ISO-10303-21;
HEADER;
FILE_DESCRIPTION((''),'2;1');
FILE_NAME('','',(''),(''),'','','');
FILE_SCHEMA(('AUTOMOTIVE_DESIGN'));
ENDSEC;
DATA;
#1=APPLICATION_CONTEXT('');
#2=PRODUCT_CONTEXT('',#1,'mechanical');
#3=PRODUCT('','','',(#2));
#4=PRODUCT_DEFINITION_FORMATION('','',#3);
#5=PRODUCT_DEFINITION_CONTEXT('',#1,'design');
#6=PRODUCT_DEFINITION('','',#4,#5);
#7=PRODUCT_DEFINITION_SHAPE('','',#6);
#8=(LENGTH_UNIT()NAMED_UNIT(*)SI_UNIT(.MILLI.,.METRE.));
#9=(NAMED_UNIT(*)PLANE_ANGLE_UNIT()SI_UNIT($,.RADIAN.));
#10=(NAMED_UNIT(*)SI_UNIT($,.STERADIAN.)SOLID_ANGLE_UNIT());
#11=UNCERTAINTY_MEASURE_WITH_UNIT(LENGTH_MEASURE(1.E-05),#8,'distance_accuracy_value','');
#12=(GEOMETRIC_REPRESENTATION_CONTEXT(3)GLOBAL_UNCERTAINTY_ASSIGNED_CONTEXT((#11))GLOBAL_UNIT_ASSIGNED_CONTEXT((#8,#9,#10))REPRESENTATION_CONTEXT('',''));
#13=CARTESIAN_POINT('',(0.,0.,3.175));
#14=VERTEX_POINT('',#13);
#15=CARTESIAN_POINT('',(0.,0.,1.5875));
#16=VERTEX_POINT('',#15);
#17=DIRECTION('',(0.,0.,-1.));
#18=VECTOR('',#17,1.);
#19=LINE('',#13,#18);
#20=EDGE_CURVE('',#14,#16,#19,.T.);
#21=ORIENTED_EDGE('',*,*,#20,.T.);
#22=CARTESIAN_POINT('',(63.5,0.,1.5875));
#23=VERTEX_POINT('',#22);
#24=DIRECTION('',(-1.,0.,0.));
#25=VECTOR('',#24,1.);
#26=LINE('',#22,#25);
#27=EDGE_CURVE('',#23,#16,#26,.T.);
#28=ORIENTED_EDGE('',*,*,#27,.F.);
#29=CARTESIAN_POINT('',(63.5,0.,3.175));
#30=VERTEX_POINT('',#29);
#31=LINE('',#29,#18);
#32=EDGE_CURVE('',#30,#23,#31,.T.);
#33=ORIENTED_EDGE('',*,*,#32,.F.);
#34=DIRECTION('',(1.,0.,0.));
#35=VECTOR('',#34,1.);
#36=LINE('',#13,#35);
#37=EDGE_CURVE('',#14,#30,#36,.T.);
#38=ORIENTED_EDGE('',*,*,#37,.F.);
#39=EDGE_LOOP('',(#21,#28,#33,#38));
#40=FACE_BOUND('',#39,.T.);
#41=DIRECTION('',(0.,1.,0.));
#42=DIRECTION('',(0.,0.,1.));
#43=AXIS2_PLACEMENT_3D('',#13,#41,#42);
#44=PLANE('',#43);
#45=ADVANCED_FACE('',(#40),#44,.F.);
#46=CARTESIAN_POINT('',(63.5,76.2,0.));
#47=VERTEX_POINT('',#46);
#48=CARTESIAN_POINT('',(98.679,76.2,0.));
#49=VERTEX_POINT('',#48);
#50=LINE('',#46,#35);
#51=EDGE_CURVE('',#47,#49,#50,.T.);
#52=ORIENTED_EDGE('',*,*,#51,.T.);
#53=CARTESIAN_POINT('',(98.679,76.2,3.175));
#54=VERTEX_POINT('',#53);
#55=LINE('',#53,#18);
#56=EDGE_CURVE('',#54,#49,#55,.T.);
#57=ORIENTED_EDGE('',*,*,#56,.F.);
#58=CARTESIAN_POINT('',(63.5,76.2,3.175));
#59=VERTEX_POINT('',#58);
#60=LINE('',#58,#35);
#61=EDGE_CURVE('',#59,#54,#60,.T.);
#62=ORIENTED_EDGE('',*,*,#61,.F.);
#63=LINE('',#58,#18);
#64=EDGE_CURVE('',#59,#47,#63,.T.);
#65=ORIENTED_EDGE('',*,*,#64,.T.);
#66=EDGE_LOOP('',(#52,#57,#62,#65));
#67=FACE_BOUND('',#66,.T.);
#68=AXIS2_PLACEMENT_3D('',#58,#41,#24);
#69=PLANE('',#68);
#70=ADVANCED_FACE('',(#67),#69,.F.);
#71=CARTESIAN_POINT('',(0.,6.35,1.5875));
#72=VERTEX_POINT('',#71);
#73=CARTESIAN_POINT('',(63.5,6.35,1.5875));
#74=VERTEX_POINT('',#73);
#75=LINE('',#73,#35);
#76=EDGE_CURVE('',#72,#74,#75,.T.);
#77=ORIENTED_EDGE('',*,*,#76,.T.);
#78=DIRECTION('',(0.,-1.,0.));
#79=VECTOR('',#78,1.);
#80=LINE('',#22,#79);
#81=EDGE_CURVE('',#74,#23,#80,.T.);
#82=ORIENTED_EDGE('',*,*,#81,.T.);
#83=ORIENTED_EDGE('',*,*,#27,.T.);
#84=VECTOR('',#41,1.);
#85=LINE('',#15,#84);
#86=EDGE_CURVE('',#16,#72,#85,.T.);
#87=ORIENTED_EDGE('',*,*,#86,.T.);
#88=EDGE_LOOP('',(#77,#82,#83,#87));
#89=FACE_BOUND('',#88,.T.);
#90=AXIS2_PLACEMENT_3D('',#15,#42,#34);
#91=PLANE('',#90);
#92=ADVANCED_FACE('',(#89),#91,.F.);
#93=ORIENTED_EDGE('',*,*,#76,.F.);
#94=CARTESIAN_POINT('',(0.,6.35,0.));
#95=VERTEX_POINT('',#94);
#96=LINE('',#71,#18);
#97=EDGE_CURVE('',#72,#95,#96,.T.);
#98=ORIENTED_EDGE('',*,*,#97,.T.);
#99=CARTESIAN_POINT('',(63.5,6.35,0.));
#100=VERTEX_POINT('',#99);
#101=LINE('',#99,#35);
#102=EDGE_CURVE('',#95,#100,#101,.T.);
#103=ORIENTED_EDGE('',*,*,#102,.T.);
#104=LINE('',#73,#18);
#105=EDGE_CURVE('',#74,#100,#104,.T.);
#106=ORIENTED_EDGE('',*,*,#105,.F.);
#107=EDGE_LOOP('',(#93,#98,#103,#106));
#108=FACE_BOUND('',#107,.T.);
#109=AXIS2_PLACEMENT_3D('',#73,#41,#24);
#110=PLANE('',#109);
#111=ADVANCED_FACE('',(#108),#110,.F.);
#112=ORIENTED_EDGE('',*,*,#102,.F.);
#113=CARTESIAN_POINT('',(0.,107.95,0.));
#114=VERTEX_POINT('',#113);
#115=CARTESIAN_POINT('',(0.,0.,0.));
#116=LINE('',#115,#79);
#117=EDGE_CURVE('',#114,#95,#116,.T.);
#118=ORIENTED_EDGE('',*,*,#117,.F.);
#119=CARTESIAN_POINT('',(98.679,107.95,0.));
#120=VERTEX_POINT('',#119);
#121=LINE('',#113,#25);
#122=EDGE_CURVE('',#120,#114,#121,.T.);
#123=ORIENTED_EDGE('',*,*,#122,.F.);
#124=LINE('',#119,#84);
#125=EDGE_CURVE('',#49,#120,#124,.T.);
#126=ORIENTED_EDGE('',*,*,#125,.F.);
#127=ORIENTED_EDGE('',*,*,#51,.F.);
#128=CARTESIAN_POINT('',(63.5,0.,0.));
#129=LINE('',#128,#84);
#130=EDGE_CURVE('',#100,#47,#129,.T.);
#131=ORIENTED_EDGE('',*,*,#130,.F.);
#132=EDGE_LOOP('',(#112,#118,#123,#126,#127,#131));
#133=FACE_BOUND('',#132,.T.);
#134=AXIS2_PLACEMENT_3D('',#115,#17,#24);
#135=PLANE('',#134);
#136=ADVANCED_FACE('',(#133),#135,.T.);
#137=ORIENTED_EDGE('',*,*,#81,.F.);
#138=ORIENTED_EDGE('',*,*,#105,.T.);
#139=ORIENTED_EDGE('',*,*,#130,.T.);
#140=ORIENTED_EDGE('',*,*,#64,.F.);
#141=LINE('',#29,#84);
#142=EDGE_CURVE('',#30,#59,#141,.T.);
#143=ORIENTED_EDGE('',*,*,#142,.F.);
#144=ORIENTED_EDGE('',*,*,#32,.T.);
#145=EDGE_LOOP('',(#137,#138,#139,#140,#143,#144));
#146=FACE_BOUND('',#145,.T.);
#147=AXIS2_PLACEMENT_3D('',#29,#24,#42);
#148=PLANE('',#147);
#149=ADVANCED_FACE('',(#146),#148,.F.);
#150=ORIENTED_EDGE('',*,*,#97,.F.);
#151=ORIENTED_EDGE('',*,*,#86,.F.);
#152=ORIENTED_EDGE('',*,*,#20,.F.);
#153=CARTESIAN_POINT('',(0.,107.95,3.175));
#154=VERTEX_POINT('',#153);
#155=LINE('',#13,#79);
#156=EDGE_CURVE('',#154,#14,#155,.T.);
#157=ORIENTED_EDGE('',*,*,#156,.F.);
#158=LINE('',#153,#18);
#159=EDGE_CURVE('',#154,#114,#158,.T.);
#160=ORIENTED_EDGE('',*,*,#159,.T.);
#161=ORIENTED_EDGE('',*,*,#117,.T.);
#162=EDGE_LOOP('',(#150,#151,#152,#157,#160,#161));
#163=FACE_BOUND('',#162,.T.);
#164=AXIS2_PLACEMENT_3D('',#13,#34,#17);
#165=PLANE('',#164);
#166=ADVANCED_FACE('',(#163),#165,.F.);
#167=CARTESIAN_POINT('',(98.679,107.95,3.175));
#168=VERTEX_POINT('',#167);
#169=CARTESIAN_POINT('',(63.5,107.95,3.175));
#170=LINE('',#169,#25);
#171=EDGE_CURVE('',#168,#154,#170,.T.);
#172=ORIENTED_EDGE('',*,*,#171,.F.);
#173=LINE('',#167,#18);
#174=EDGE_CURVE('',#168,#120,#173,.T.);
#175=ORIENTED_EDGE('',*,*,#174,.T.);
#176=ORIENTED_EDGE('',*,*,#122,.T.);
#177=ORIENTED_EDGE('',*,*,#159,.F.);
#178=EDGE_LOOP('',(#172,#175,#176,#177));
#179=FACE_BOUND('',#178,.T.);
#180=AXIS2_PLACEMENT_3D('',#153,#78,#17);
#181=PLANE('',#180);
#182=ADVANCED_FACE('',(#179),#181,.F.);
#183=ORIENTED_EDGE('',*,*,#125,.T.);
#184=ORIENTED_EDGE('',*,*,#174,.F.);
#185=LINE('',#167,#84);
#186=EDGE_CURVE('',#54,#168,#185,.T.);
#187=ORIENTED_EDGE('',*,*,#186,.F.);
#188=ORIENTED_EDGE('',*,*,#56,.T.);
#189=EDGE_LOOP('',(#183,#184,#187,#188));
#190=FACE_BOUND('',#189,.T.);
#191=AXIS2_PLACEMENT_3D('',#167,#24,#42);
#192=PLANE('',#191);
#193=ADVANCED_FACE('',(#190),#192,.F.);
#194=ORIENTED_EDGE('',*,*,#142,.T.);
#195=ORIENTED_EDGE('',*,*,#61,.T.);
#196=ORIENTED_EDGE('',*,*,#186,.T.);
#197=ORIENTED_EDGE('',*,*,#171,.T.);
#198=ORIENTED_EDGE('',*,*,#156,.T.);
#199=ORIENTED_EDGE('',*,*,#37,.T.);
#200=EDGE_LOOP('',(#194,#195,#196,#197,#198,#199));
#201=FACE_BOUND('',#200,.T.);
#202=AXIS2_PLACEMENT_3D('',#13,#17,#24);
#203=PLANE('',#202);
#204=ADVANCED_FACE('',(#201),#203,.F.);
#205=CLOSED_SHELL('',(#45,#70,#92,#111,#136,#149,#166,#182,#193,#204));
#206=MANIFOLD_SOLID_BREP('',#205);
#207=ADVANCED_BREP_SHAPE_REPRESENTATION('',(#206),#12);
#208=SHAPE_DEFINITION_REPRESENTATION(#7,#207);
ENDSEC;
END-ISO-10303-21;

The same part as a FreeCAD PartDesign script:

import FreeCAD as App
import Part
import Sketcher
from FreeCAD import Vector
Q = App.Units.Quantity

doc = App.newDocument("Part")
body = doc.addObject("PartDesign::Body", "Body")

# Sketch on XY plane
sketch1 = body.newObject("Sketcher::SketchObject", "Sketch")
sketch1.AttachmentSupport = (doc.getObject("XY_Plane"), [""])
sketch1.MapMode = "FlatFace"
sketch1.addGeometry([
    Part.LineSegment(Vector(0, 0, 0), Vector(63.5, 0, 0)),  # 0
    Part.LineSegment(Vector(63.5, 0, 0), Vector(63.5, 76.2, 0)),  # 1
    Part.LineSegment(Vector(63.5, 76.2, 0), Vector(98.679, 76.2, 0)),  # 2
    Part.LineSegment(Vector(98.679, 76.2, 0), Vector(98.679, 107.95, 0)),  # 3
    Part.LineSegment(Vector(98.679, 107.95, 0), Vector(0, 107.95, 0)),  # 4
    Part.LineSegment(Vector(0, 107.95, 0), Vector(0, 0, 0)),  # 5
], False)
sketch1.addConstraint([
    Sketcher.Constraint("Coincident", 0, 2, 1, 1),
    Sketcher.Constraint("Coincident", 1, 2, 2, 1),
    Sketcher.Constraint("Coincident", 2, 2, 3, 1),
    Sketcher.Constraint("Coincident", 3, 2, 4, 1),
    Sketcher.Constraint("Coincident", 4, 2, 5, 1),
    Sketcher.Constraint("Coincident", 5, 2, 0, 1),
    Sketcher.Constraint("Horizontal", 0),
    Sketcher.Constraint("Vertical", 1),
    Sketcher.Constraint("Horizontal", 2),
    Sketcher.Constraint("Vertical", 3),
    Sketcher.Constraint("Horizontal", 4),
    Sketcher.Constraint("Vertical", 5),
    Sketcher.Constraint("Coincident", 5, 2, -1, 1),
    Sketcher.Constraint("DistanceY", 1, 1, 1, 2, Q("3 in")),
    Sketcher.Constraint("DistanceX", 0, 1, 0, 2, Q("2.5 in")),
    Sketcher.Constraint("DistanceY", 3, 1, 3, 2, Q("1.25 in")),
    Sketcher.Constraint("DistanceX", 2, 1, 2, 2, Q("1.385 in")),
])
pad1 = body.newObject("PartDesign::Pad", "Pad")
pad1.Profile = sketch1
pad1.Length = Q("0.125 in")

# Sketch on XY plane
sketch2 = body.newObject("Sketcher::SketchObject", "Sketch001")
sketch2.AttachmentSupport = (doc.getObject("XY_Plane"), [""])
sketch2.MapMode = "FlatFace"
sketch2.addGeometry([
    Part.LineSegment(Vector(63.5, 6.35, 0), Vector(63.5, 0, 0)),
    Part.LineSegment(Vector(63.5, 0, 0), Vector(0, 0, 0)),
    Part.LineSegment(Vector(0, 0, 0), Vector(0, 6.35, 0)),
    Part.LineSegment(Vector(0, 6.35, 0), Vector(63.5, 6.35, 0)),
], False)
sketch2.addConstraint([
    Sketcher.Constraint("Coincident", 0, 2, 1, 1),
    Sketcher.Constraint("Coincident", 1, 2, 2, 1),
    Sketcher.Constraint("Coincident", 2, 2, 3, 1),
    Sketcher.Constraint("Coincident", 3, 2, 0, 1),
    Sketcher.Constraint("Vertical", 0),
    Sketcher.Constraint("Horizontal", 1),
    Sketcher.Constraint("Vertical", 2),
    Sketcher.Constraint("Horizontal", 3),
    Sketcher.Constraint("Coincident", 1, 2, -1, 1),
    Sketcher.Constraint("DistanceX", 1, 2, 1, 1, Q("2.5 in")),
    Sketcher.Constraint("DistanceY", 0, 2, 0, 1, Q("0.25 in")),
])
pocket1 = body.newObject("PartDesign::Pocket", "Pocket")
pocket1.Profile = sketch2
pocket1.Length = Q("0.0625 in")
pocket1.Reversed = True

doc.recompute()
